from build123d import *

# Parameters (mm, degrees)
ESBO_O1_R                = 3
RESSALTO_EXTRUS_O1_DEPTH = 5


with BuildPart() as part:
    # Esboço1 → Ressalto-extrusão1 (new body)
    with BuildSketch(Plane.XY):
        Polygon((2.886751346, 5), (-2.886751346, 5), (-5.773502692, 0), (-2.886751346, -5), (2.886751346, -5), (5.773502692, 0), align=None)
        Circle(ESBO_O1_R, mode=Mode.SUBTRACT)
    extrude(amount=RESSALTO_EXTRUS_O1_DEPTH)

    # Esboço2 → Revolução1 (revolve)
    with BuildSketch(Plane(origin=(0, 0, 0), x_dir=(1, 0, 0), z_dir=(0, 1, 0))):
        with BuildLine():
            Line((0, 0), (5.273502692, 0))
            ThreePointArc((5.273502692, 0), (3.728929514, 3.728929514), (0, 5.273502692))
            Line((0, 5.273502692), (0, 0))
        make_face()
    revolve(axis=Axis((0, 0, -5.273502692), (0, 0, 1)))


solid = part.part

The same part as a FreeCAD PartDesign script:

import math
import FreeCAD as App
import Part
import Sketcher
Q = App.Units.Quantity


def add_polygon(sketch, points):
    """Adds a closed chain of lines whose ends are joined by coincident constraints."""
    first, n = sketch.GeometryCount, len(points)
    for a, b in zip(points, points[1:] + points[:1]):
        sketch.addGeometry(Part.LineSegment(App.Vector(*a, 0), App.Vector(*b, 0)), False)
    for i in range(n):
        sketch.addConstraint(Sketcher.Constraint("Coincident", first + i, 2, first + (i + 1) % n, 1))

doc = App.newDocument("Part")
body = doc.addObject("PartDesign::Body", "Body")

# Sketch on XY plane
sketch1 = body.newObject("Sketcher::SketchObject", "Sketch")
sketch1.AttachmentSupport = (doc.getObject("XY_Plane"), [""])
sketch1.MapMode = "FlatFace"
add_polygon(sketch1, [(2.886751, 5), (-2.886751, 5), (-5.773503, 0), (-2.886751, -5), (2.886751, -5), (5.773503, 0)])  # lines 0-5
sketch1.addGeometry(Part.Circle(App.Vector(0, 0, 0), App.Vector(0, 0, 1), 3), False)  # 6
sketch1.addConstraint([
    Sketcher.Constraint("Horizontal", 0),
    Sketcher.Constraint("Horizontal", 3),
    Sketcher.Constraint("Coincident", 6, 3, -1, 1),
    Sketcher.Constraint("Symmetric", 0, 2, 3, 2, -1, 1),
    Sketcher.Constraint("Symmetric", 1, 2, 4, 2, -1, 1),
    Sketcher.Constraint("PointOnObject", 1, 2, -1),
    Sketcher.Constraint("Parallel", 2, 5),
    Sketcher.Constraint("Vertical", 0, 2, 2, 2),
    Sketcher.Constraint("Diameter", 6, Q("6 mm")),
    Sketcher.Constraint("Angle", 1, Q("-120 deg")),
    Sketcher.Constraint("DistanceY", -1, 1, 0, 2, Q("5 mm")),
    Sketcher.Constraint("DistanceX", 0, 2, 0, 1, Q("5.773503 mm")),
])
pad1 = body.newObject("PartDesign::Pad", "Pad")
pad1.Profile = sketch1
pad1.Length = 5

# Sketch on XZ plane
sketch2 = body.newObject("Sketcher::SketchObject", "Sketch001")
sketch2.AttachmentSupport = (doc.getObject("XZ_Plane"), [""])
sketch2.MapMode = "FlatFace"
sketch2.addGeometry([
    Part.LineSegment(App.Vector(0, 0, 0), App.Vector(5.273503, 0, 0)),
    Part.ArcOfCircle(Part.Circle(App.Vector(0, 0, 0), App.Vector(0, 0, 1), 5.273503), math.radians(-90), math.radians(0)),
    Part.LineSegment(App.Vector(0, -5.273503, 0), App.Vector(0, 0, 0)),
], False)
sketch2.addConstraint([
    Sketcher.Constraint("Coincident", 0, 2, 1, 2),
    Sketcher.Constraint("Coincident", 1, 1, 2, 1),
    Sketcher.Constraint("Coincident", 2, 2, 0, 1),
    Sketcher.Constraint("Horizontal", 0),
    Sketcher.Constraint("Vertical", 2),
    Sketcher.Constraint("Coincident", 1, 3, -1, 1),
    Sketcher.Constraint("Coincident", 2, 2, -1, 1),
    Sketcher.Constraint("Radius", 1, Q("5.273503 mm")),
])
revolution = body.newObject("PartDesign::Revolution", "Revolution")
revolution.Profile = sketch2
revolution.ReferenceAxis = (sketch2, ["V_Axis"])
revolution.Angle = 360

doc.recompute()
